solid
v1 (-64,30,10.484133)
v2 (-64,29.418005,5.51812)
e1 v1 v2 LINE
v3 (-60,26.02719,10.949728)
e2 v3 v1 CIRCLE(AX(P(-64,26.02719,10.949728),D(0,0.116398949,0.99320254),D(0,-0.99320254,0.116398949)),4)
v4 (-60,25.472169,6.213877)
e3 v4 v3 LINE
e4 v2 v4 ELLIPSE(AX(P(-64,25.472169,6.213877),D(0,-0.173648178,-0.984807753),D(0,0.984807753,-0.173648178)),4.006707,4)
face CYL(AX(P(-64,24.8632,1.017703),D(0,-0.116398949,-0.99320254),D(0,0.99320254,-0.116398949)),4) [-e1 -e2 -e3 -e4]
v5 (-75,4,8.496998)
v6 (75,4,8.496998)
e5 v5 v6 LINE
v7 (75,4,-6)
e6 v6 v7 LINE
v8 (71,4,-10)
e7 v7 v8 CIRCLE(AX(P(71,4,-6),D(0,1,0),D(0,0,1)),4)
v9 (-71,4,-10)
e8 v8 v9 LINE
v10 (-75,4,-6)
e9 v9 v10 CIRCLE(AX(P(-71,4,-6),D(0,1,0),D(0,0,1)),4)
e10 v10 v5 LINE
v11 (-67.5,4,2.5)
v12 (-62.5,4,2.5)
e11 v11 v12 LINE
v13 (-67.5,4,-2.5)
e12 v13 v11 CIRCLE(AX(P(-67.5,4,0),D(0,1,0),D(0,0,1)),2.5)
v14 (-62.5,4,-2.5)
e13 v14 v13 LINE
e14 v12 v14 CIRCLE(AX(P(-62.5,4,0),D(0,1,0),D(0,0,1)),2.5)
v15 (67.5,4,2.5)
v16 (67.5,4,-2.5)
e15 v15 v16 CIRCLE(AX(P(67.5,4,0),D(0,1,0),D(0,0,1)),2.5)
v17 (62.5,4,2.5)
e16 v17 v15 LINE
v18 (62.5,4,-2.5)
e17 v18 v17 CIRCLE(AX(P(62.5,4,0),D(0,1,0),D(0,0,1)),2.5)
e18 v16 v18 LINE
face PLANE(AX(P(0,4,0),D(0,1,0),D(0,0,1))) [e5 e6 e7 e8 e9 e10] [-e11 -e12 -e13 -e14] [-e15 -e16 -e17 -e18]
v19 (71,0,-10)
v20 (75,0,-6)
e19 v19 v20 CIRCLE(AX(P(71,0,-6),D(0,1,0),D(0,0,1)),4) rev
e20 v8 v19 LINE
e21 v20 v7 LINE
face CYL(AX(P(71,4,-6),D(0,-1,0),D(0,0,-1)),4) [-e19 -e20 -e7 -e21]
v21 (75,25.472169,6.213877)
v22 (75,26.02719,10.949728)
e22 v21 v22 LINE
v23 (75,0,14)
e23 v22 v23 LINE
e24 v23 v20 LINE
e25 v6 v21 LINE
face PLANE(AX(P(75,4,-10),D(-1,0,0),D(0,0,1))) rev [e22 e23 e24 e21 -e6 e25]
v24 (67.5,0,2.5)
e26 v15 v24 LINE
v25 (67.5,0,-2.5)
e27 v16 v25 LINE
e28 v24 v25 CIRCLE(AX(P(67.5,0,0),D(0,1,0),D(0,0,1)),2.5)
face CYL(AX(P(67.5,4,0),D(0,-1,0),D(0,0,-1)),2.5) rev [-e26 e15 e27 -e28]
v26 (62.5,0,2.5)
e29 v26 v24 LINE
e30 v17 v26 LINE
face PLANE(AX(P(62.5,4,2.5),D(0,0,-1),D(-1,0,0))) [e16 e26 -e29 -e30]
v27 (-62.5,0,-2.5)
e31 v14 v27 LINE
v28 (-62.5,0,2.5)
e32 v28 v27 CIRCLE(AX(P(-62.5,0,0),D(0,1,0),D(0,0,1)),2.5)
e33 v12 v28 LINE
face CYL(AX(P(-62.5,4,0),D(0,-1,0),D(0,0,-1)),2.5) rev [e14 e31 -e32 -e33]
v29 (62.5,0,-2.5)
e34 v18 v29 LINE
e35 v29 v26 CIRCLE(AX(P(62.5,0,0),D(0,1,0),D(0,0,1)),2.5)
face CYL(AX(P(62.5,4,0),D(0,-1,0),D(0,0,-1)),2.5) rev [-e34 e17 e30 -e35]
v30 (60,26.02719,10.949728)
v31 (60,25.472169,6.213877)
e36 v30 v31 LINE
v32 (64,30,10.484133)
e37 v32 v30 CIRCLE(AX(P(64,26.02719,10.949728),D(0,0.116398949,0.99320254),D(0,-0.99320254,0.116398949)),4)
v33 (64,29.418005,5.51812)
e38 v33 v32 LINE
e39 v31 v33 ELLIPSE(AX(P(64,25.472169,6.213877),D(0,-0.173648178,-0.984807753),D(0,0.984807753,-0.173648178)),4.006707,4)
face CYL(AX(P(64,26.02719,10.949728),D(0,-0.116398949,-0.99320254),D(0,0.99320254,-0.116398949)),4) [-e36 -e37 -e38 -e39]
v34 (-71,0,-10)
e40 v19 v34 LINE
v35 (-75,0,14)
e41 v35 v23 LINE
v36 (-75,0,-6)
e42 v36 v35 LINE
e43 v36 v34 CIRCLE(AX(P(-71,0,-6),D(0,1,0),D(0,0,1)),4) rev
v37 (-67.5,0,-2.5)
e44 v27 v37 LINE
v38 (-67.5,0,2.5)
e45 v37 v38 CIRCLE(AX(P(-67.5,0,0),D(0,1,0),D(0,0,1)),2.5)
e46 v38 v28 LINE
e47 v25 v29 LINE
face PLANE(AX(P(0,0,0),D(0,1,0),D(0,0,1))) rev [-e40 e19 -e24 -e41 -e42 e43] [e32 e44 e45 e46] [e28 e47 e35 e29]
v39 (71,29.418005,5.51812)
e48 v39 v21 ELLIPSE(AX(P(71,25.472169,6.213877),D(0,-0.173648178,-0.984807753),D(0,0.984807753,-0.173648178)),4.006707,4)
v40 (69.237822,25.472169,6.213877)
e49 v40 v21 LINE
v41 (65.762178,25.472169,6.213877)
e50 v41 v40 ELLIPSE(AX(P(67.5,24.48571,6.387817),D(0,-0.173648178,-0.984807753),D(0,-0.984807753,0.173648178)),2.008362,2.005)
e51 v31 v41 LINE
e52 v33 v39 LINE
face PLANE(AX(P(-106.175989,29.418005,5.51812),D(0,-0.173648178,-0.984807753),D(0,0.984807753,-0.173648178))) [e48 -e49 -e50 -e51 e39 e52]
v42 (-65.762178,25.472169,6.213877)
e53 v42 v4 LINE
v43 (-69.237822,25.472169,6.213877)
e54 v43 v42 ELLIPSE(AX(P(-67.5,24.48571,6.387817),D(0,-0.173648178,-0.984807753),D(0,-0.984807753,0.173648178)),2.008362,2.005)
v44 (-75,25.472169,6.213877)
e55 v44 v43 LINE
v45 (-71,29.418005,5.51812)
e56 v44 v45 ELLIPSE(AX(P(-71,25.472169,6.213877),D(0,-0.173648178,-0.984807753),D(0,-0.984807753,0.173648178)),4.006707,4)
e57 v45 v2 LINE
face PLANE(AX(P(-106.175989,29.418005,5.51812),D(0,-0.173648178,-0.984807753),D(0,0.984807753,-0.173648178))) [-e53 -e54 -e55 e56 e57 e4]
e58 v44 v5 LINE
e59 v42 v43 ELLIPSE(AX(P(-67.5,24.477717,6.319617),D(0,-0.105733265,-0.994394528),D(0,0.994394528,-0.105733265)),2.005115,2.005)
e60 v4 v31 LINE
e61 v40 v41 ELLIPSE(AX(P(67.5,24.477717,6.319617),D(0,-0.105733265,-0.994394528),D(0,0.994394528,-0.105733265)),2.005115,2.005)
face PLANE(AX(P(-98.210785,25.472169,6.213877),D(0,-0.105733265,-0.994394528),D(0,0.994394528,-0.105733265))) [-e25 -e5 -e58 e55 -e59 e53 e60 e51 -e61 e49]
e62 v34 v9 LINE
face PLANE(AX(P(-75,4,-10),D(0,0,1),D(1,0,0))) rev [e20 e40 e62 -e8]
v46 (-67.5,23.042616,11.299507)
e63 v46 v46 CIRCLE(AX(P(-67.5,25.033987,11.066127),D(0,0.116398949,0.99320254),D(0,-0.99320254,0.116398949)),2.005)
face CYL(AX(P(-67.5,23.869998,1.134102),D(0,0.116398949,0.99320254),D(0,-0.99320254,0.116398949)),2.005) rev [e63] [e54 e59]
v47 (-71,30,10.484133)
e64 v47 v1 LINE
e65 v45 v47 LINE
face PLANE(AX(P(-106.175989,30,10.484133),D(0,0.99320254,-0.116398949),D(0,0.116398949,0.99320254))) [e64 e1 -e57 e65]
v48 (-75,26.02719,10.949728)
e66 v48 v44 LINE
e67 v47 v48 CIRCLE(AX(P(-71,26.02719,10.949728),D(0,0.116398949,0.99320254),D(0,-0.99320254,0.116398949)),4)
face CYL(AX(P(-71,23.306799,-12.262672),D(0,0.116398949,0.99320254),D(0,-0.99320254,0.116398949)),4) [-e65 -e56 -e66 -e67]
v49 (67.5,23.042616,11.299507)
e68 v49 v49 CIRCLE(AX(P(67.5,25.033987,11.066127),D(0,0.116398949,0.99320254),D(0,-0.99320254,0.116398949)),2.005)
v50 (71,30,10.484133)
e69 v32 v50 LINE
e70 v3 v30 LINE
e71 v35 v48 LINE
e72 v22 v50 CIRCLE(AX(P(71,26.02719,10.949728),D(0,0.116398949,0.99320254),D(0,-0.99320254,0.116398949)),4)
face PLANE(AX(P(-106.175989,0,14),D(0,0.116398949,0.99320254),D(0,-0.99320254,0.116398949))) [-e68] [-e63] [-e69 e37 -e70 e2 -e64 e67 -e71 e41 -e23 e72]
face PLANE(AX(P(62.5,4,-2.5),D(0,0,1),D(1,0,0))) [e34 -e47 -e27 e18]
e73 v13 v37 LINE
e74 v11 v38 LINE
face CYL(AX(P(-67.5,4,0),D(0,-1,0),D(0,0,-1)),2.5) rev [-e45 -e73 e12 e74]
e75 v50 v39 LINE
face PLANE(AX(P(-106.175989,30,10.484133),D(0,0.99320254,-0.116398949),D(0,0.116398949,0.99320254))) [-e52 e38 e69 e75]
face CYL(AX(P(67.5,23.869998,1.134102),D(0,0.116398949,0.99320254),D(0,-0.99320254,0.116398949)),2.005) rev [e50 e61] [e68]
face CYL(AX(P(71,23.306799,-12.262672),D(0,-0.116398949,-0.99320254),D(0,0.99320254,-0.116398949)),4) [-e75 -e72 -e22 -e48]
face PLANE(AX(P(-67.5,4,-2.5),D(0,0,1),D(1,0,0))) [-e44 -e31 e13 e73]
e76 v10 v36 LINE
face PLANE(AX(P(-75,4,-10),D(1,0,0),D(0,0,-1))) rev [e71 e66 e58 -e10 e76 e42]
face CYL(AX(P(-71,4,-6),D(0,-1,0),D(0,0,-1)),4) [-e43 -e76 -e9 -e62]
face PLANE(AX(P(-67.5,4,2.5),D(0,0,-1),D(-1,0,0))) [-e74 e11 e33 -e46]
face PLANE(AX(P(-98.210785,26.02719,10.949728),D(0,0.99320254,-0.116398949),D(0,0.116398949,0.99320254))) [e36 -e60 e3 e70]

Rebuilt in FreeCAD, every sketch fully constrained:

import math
import FreeCAD as App
import Part
import Sketcher
Q = App.Units.Quantity


def edges_at(feature, points):
    """Names of the edges that pass closest to the given points."""
    edges = feature.Shape.Edges
    near = lambda p: min(range(len(edges)), key=lambda i: edges[i].distToShape(Part.Vertex(*p))[0])
    return sorted({f"Edge{near(p) + 1}" for p in points})

doc = App.newDocument("Part")
params = doc.addObject("Spreadsheet::Sheet", "Params")
for row, (alias, value) in enumerate([
    ("sketch1_radius", "2.5 mm"),
    ("sketch1_width", "150 mm"),
    ("sketch1_width2", "5 mm"),
    ("sketch1_height", "20 mm"),
    ("pad1_length", "4 mm"),
    ("sketch2_width", "4 mm"),
    ("sketch2_length", "5 mm"),
    ("pad2_length", "150 mm"),
    ("fillet_radius", "4 mm"),
    ("sketch3_width", "120 mm"),
    ("pocket1_length", "10 mm"),
    ("fillet2_radius", "4 mm"),
    ("fillet3_radius", "4 mm"),
    ("sketch4_width", "124 mm"),
    ("pad3_length", "4 mm"),
    ("pad4_length", "150 mm"),
    ("sketch6_diameter", "4.01 mm"),
    ("pocket2_length", "10 mm"),
], start=1):
    params.set(f"A{row}", alias)
    params.set(f"B{row}", "=" + value)
    params.setAlias(f"B{row}", alias)

body = doc.addObject("PartDesign::Body", "Body")

sketch1 = body.newObject("Sketcher::SketchObject", "Sketch")
sketch1.AttachmentSupport = (doc.getObject("XZ_Plane"), [""])
sketch1.MapMode = "FlatFace"
sketch1.addGeometry([
    Part.LineSegment(App.Vector(-75, -10, 0), App.Vector(-75, 10, 0)),
    Part.LineSegment(App.Vector(-75, 10, 0), App.Vector(75, 10, 0)),
    Part.LineSegment(App.Vector(75, 10, 0), App.Vector(75, -10, 0)),
    Part.LineSegment(App.Vector(75, -10, 0), App.Vector(-75, -10, 0)),
    Part.ArcOfCircle(Part.Circle(App.Vector(-67.5, 0, 0), App.Vector(0, 0, 1), 2.5), math.radians(90), math.radians(270)),
    Part.LineSegment(App.Vector(-67.5, -2.5, 0), App.Vector(-62.5, -2.5, 0)),
    Part.ArcOfCircle(Part.Circle(App.Vector(-62.5, 0, 0), App.Vector(0, 0, 1), 2.5), math.radians(-90), math.radians(90)),
    Part.LineSegment(App.Vector(-62.5, 2.5, 0), App.Vector(-67.5, 2.5, 0)),
    Part.ArcOfCircle(Part.Circle(App.Vector(62.5, 0, 0), App.Vector(0, 0, 1), 2.5), math.radians(90), math.radians(270)),
    Part.LineSegment(App.Vector(62.5, -2.5, 0), App.Vector(67.5, -2.5, 0)),
    Part.ArcOfCircle(Part.Circle(App.Vector(67.5, 0, 0), App.Vector(0, 0, 1), 2.5), math.radians(-90), math.radians(90)),
    Part.LineSegment(App.Vector(67.5, 2.5, 0), App.Vector(62.5, 2.5, 0)),
], False)
sketch1.addConstraint([
    Sketcher.Constraint("Coincident", 0, 2, 1, 1),
    Sketcher.Constraint("Coincident", 1, 2, 2, 1),
    Sketcher.Constraint("Coincident", 2, 2, 3, 1),
    Sketcher.Constraint("Coincident", 3, 2, 0, 1),
    Sketcher.Constraint("Tangent", 4, 2, 5, 1),
    Sketcher.Constraint("Tangent", 5, 2, 6, 1),
    Sketcher.Constraint("Tangent", 6, 2, 7, 1),
    Sketcher.Constraint("Tangent", 7, 2, 4, 1),
    Sketcher.Constraint("Tangent", 8, 2, 9, 1),
    Sketcher.Constraint("Tangent", 9, 2, 10, 1),
    Sketcher.Constraint("Tangent", 10, 2, 11, 1),
    Sketcher.Constraint("Tangent", 11, 2, 8, 1),
    Sketcher.Constraint("Vertical", 0),
    Sketcher.Constraint("Horizontal", 1),
    Sketcher.Constraint("Vertical", 2),
    Sketcher.Constraint("Horizontal", 3),
    Sketcher.Constraint("Horizontal", 5),
    Sketcher.Constraint("Horizontal", 7),
    Sketcher.Constraint("Horizontal", 9),
    Sketcher.Constraint("Horizontal", 11),
    Sketcher.Constraint("Equal", 6, 8),
    Sketcher.Constraint("Symmetric", 6, 3, 8, 3, -1, 1),
    Sketcher.Constraint("Symmetric", 0, 2, 2, 2, -1, 1),
    Sketcher.Constraint("Symmetric", 4, 3, 10, 3, -2),
    Sketcher.Constraint("Radius", 4, 2.5),
    Sketcher.Constraint("DistanceX", 1, 1, 1, 2, 150.0),
    Sketcher.Constraint("DistanceX", 5, 1, 5, 2, 5.0),
    Sketcher.Constraint("DistanceY", 0, 1, 0, 2, 20.0),
    Sketcher.Constraint("DistanceX", 6, 3, 8, 3, 125.0),
])
sketch1.setExpression("Constraints[24]", "Params.sketch1_radius")
sketch1.setExpression("Constraints[25]", "Params.sketch1_width")
sketch1.setExpression("Constraints[26]", "Params.sketch1_width2")
sketch1.setExpression("Constraints[27]", "Params.sketch1_height")
pad1 = body.newObject("PartDesign::Pad", "Pad")
pad1.Profile = sketch1
pad1.setExpression("Length", "Params.pad1_length")
pad1.Reversed = True

sketch2 = body.newObject("Sketcher::SketchObject", "Sketch001")
sketch2.AttachmentSupport = (doc.getObject("YZ_Plane"), [""])
sketch2.MapMode = "FlatFace"
sketch2.AttachmentOffset = App.Placement(App.Vector(0, 0, 75), App.Rotation())
sketch2.addGeometry([
    Part.LineSegment(App.Vector(0, 14, 0), App.Vector(0, 10, 0)),
    Part.LineSegment(App.Vector(0, 10, 0), App.Vector(4, 10, 0)),
    Part.LineSegment(App.Vector(4, 10, 0), App.Vector(29.4, 5.5, 0)),
    Part.LineSegment(App.Vector(29.4, 5.5, 0), App.Vector(30, 10.5, 0)),
    Part.LineSegment(App.Vector(30, 10.5, 0), App.Vector(0, 14, 0)),
], False)
sketch2.addConstraint([
    Sketcher.Constraint("Coincident", 0, 2, 1, 1),
    Sketcher.Constraint("Coincident", 1, 2, 2, 1),
    Sketcher.Constraint("Coincident", 2, 2, 3, 1),
    Sketcher.Constraint("Coincident", 3, 2, 4, 1),
    Sketcher.Constraint("Coincident", 4, 2, 0, 1),
    Sketcher.Constraint("Vertical", 0),
    Sketcher.Constraint("Horizontal", 1),
    Sketcher.Constraint("PointOnObject", 0, 2, -2),
    Sketcher.Constraint("Perpendicular", 3, 4),
    Sketcher.Constraint("Equal", 1, 0),
    Sketcher.Constraint("DistanceX", 1, 1, 1, 2, 4.0),
    Sketcher.Constraint("Angle", 2, Q("-10 deg")),
    Sketcher.Constraint("Distance", 3, 5.0),
    Sketcher.Constraint("DistanceY", -1, 1, 0, 2, 10.0),
    Sketcher.Constraint("DistanceX", -1, 1, 3, 2, 30.0),
])
sketch2.setExpression("Constraints[10]", "Params.sketch2_width")
sketch2.setExpression("Constraints[12]", "Params.sketch2_length")
pad2 = body.newObject("PartDesign::Pad", "Pad001")
pad2.Profile = sketch2
pad2.setExpression("Length", "Params.pad2_length")
pad2.Reversed = True
doc.recompute()

fillet = body.newObject("PartDesign::Fillet", "Fillet")
fillet.Base = (pad2, edges_at(pad2, [(75, 29.709, 8.001), (-75, 29.709, 8.001)]))
fillet.setExpression("Radius", "Params.fillet_radius")

sketch3 = body.newObject("Sketcher::SketchObject", "Sketch002")
sketch3.Placement = App.Placement(App.Vector(0, 1.618508, 13.810318), App.Rotation(App.Vector(1, 0, 0), App.Vector(0, 0.99320254, -0.116398949), App.Vector(0, 0.116398949, 0.99320254), "ZXY"))
sketch3.addGeometry([
    Part.LineSegment(App.Vector(-60, 29, 0), App.Vector(-60, 3, 0)),
    Part.LineSegment(App.Vector(-60, 3, 0), App.Vector(60, 3, 0)),
    Part.LineSegment(App.Vector(60, 3, 0), App.Vector(60, 29, 0)),
    Part.LineSegment(App.Vector(60, 29, 0), App.Vector(-60, 29, 0)),
], False)
sketch3.addConstraint([
    Sketcher.Constraint("Coincident", 0, 2, 1, 1),
    Sketcher.Constraint("Coincident", 1, 2, 2, 1),
    Sketcher.Constraint("Coincident", 2, 2, 3, 1),
    Sketcher.Constraint("Coincident", 3, 2, 0, 1),
    Sketcher.Constraint("Vertical", 0),
    Sketcher.Constraint("Horizontal", 1),
    Sketcher.Constraint("Vertical", 2),
    Sketcher.Constraint("Horizontal", 3),
    Sketcher.Constraint("DistanceX", 1, 1, 1, 2, 120.0),
    Sketcher.Constraint("DistanceX", 0, 2, -1, 1, 60.0),
    Sketcher.Constraint("DistanceY", 0, 2, 0, 1, 25.205319),
    Sketcher.Constraint("DistanceY", -1, 1, 0, 2, 3.370415),
])
sketch3.setExpression("Constraints[8]", "Params.sketch3_width")
pocket1 = body.newObject("PartDesign::Pocket", "Pocket")
pocket1.Profile = sketch3
pocket1.setExpression("Length", "Params.pocket1_length")
doc.recompute()

fillet2 = body.newObject("PartDesign::Fillet", "Fillet001")
fillet2.Base = (pocket1, edges_at(pocket1, [(-60, 29.709, 8.001), (60, 29.709, 8.001)]))
fillet2.setExpression("Radius", "Params.fillet2_radius")
doc.recompute()

fillet3 = body.newObject("PartDesign::Fillet", "Fillet002")
fillet3.Base = (fillet2, edges_at(fillet2, [(-75, 2, -10), (75, 2, -10)]))
fillet3.setExpression("Radius", "Params.fillet3_radius")

sketch4 = body.newObject("Sketcher::SketchObject", "Sketch003")
sketch4.AttachmentSupport = (doc.getObject("XZ_Plane"), [""])
sketch4.MapMode = "FlatFace"
sketch4.AttachmentOffset = App.Placement(App.Vector(0, 0, -4), App.Rotation())
sketch4.addGeometry([
    Part.LineSegment(App.Vector(-60, 3, 0), App.Vector(-60, 10, 0)),
    Part.LineSegment(App.Vector(-60, 10, 0), App.Vector(64, 10, 0)),
    Part.LineSegment(App.Vector(64, 10, 0), App.Vector(64, 3, 0)),
    Part.LineSegment(App.Vector(64, 3, 0), App.Vector(-60, 3, 0)),
], False)
sketch4.addConstraint([
    Sketcher.Constraint("Coincident", 0, 2, 1, 1),
    Sketcher.Constraint("Coincident", 1, 2, 2, 1),
    Sketcher.Constraint("Coincident", 2, 2, 3, 1),
    Sketcher.Constraint("Coincident", 3, 2, 0, 1),
    Sketcher.Constraint("Vertical", 0),
    Sketcher.Constraint("Horizontal", 1),
    Sketcher.Constraint("Vertical", 2),
    Sketcher.Constraint("Horizontal", 3),
    Sketcher.Constraint("DistanceX", 1, 1, 1, 2, 124.0),
    Sketcher.Constraint("DistanceX", 0, 2, -1, 1, 60.0),
    Sketcher.Constraint("DistanceY", 0, 1, 0, 2, 7.021355),
    Sketcher.Constraint("DistanceY", -1, 1, 0, 2, 10.484133),
])
sketch4.setExpression("Constraints[8]", "Params.sketch4_width")
pad3 = body.newObject("PartDesign::Pad", "Pad002")
pad3.Profile = sketch4
pad3.setExpression("Length", "Params.pad3_length")

sketch5 = body.newObject("Sketcher::SketchObject", "Sketch004")
sketch5.AttachmentSupport = (doc.getObject("YZ_Plane"), [""])
sketch5.MapMode = "FlatFace"
sketch5.AttachmentOffset = App.Placement(App.Vector(0, 0, -75), App.Rotation())
sketch5.addGeometry([
    Part.LineSegment(App.Vector(4, 8.5, 0), App.Vector(25.5, 6.2, 0)),
    Part.LineSegment(App.Vector(25.5, 6.2, 0), App.Vector(26, 10.9, 0)),
    Part.LineSegment(App.Vector(26, 10.9, 0), App.Vector(4, 13.5, 0)),
    Part.LineSegment(App.Vector(4, 13.5, 0), App.Vector(4, 8.5, 0)),
], False)
sketch5.addConstraint([
    Sketcher.Constraint("Coincident", 0, 2, 1, 1),
    Sketcher.Constraint("Coincident", 1, 2, 2, 1),
    Sketcher.Constraint("Coincident", 2, 2, 3, 1),
    Sketcher.Constraint("Coincident", 3, 2, 0, 1),
    Sketcher.Constraint("Vertical", 3),
    Sketcher.Constraint("Perpendicular", 1, 2),
    Sketcher.Constraint("DistanceX", -1, 1, 2, 2, 4.0),
    Sketcher.Constraint("DistanceY", 3, 2, 3, 1, 5.03422),
    Sketcher.Constraint("Distance", 0, 21.593209),
    Sketcher.Constraint("DistanceX", -1, 1, 0, 2, 25.472169),
    Sketcher.Constraint("DistanceX", -1, 1, 1, 2, 26.02719),
    Sketcher.Constraint("DistanceY", -1, 1, 1, 2, 10.949728),
])
pad4 = body.newObject("PartDesign::Pad", "Pad003")
pad4.Profile = sketch5
pad4.setExpression("Length", "Params.pad4_length")

sketch6 = body.newObject("Sketcher::SketchObject", "Sketch005")
sketch6.Placement = App.Placement(App.Vector(0, 1.618508, 13.810318), App.Rotation(App.Vector(1, 0, 0), App.Vector(0, 0.99320254, -0.116398949), App.Vector(0, 0.116398949, 0.99320254), "ZXY"))
sketch6.addGeometry([
    Part.Circle(App.Vector(-67.5, 23.6, 0), App.Vector(0, 0, 1), 2),
    Part.Circle(App.Vector(67.5, 23.6, 0), App.Vector(0, 0, 1), 2),
], False)
sketch6.addConstraint([
    Sketcher.Constraint("Equal", 0, 1),
    Sketcher.Constraint("Symmetric", 0, 3, 1, 3, -2),
    Sketcher.Constraint("Diameter", 0, 4.01),
    Sketcher.Constraint("DistanceX", 0, 3, 1, 3, 135.0),
    Sketcher.Constraint("DistanceY", -1, 1, 0, 3, 23.575734),
])
sketch6.setExpression("Constraints[2]", "Params.sketch6_diameter")
pocket2 = body.newObject("PartDesign::Pocket", "Pocket001")
pocket2.Profile = sketch6
pocket2.setExpression("Length", "Params.pocket2_length")

doc.recompute()
